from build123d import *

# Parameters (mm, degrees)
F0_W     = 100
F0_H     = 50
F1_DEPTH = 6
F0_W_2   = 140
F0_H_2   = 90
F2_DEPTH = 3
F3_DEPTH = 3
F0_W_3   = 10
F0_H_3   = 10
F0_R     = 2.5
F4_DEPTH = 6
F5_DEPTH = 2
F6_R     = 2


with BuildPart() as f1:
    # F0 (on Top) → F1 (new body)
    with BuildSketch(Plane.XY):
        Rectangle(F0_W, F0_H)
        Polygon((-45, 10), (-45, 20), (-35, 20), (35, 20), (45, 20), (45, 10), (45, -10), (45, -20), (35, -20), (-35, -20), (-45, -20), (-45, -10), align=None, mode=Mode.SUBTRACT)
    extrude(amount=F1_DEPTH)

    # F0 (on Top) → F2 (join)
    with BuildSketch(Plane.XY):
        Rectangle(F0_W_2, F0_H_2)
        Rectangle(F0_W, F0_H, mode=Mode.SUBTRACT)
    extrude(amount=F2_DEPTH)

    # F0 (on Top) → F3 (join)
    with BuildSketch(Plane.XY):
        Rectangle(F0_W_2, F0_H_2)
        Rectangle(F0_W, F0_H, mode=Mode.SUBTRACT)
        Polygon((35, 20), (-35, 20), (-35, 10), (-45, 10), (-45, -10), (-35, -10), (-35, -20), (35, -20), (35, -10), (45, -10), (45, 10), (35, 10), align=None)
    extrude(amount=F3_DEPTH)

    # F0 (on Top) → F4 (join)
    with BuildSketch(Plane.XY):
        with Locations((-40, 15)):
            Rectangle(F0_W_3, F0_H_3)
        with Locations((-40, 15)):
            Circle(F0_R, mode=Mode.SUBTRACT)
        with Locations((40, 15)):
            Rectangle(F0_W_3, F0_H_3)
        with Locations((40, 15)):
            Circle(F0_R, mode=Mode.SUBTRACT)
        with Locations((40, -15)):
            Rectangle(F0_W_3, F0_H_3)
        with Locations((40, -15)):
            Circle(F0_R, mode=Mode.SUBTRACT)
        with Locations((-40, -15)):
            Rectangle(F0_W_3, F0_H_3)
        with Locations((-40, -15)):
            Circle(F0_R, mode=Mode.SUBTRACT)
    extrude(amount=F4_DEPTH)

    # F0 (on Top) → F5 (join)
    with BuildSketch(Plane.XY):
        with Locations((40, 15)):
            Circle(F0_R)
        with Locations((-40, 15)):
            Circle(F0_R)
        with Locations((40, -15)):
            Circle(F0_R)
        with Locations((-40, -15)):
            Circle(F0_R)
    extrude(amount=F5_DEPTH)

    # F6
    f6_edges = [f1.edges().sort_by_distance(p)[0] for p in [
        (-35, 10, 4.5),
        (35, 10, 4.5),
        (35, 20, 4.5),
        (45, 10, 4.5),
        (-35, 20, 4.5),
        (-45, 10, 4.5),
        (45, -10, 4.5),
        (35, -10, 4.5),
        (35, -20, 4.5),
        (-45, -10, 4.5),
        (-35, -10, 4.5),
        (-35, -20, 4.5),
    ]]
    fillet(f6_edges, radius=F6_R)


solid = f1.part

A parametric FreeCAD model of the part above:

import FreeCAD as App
import Part
import Sketcher
from FreeCAD import Vector
Q = App.Units.Quantity


def edges_at(feature, points):
    """Names of the edges that pass closest to the given points."""
    edges = feature.Shape.Edges
    near = lambda p: min(range(len(edges)), key=lambda i: edges[i].distToShape(Part.Vertex(*p))[0])
    return sorted({f"Edge{near(p) + 1}" for p in points})


def add_polygon(sketch, points):
    """Adds a closed chain of lines whose ends are joined by coincident constraints."""
    first, n = sketch.GeometryCount, len(points)
    for a, b in zip(points, points[1:] + points[:1]):
        sketch.addGeometry(Part.LineSegment(App.Vector(*a, 0), App.Vector(*b, 0)), False)
    for i in range(n):
        sketch.addConstraint(Sketcher.Constraint("Coincident", first + i, 2, first + (i + 1) % n, 1))

doc = App.newDocument("Part")
body = doc.addObject("PartDesign::Body", "Body")

# Sketch on XY plane
sketch1 = body.newObject("Sketcher::SketchObject", "Sketch")
sketch1.AttachmentSupport = (doc.getObject("XY_Plane"), [""])
sketch1.MapMode = "FlatFace"
add_polygon(sketch1, [(-50, 25), (-50, -25), (50, -25), (50, 25)])  # lines 0-3
add_polygon(sketch1, [(-45, -20), (-45, 20), (45, 20), (45, -20)])  # lines 4-7
sketch1.addConstraint(Sketcher.Constraint("Vertical", 0))
sketch1.addConstraint(Sketcher.Constraint("Horizontal", 1))
sketch1.addConstraint(Sketcher.Constraint("Vertical", 2))
sketch1.addConstraint(Sketcher.Constraint("Horizontal", 3))
sketch1.addConstraint(Sketcher.Constraint("Vertical", 4))
sketch1.addConstraint(Sketcher.Constraint("Horizontal", 5))
sketch1.addConstraint(Sketcher.Constraint("Vertical", 6))
sketch1.addConstraint(Sketcher.Constraint("Horizontal", 7))
sketch1.addConstraint(Sketcher.Constraint("Symmetric", 0, 2, 2, 2, -1, 1))
sketch1.addConstraint(Sketcher.Constraint("Symmetric", 4, 2, 6, 2, -1, 1))
sketch1.addConstraint(Sketcher.Constraint("DistanceX", 1, 1, 1, 2, Q("100 mm")))
sketch1.addConstraint(Sketcher.Constraint("DistanceX", 5, 1, 5, 2, Q("90 mm")))
sketch1.addConstraint(Sketcher.Constraint("DistanceY", 0, 2, 0, 1, Q("50 mm")))
sketch1.addConstraint(Sketcher.Constraint("DistanceY", 4, 1, 4, 2, Q("40 mm")))
pad1 = body.newObject("PartDesign::Pad", "Pad")
pad1.Profile = sketch1
pad1.Length = 6

# Sketch on XY plane
sketch2 = body.newObject("Sketcher::SketchObject", "Sketch001")
sketch2.AttachmentSupport = (doc.getObject("XY_Plane"), [""])
sketch2.MapMode = "FlatFace"
add_polygon(sketch2, [(-70, 45), (-70, -45), (70, -45), (70, 45)])  # lines 0-3
add_polygon(sketch2, [(50, -25), (-50, -25), (-50, 25), (50, 25)])  # lines 4-7
sketch2.addConstraint(Sketcher.Constraint("Vertical", 0))
sketch2.addConstraint(Sketcher.Constraint("Horizontal", 1))
sketch2.addConstraint(Sketcher.Constraint("Vertical", 2))
sketch2.addConstraint(Sketcher.Constraint("Horizontal", 3))
sketch2.addConstraint(Sketcher.Constraint("Horizontal", 4))
sketch2.addConstraint(Sketcher.Constraint("Vertical", 5))
sketch2.addConstraint(Sketcher.Constraint("Horizontal", 6))
sketch2.addConstraint(Sketcher.Constraint("Vertical", 7))
sketch2.addConstraint(Sketcher.Constraint("Symmetric", 0, 2, 2, 2, -1, 1))
sketch2.addConstraint(Sketcher.Constraint("Symmetric", 4, 2, 6, 2, -1, 1))
sketch2.addConstraint(Sketcher.Constraint("DistanceX", 1, 1, 1, 2, Q("140 mm")))
sketch2.addConstraint(Sketcher.Constraint("DistanceX", 4, 2, 4, 1, Q("100 mm")))
sketch2.addConstraint(Sketcher.Constraint("DistanceY", 0, 2, 0, 1, Q("90 mm")))
sketch2.addConstraint(Sketcher.Constraint("DistanceY", 5, 1, 5, 2, Q("50 mm")))
pad2 = body.newObject("PartDesign::Pad", "Pad001")
pad2.Profile = sketch2
pad2.Length = 3

# Sketch on XY plane
sketch3 = body.newObject("Sketcher::SketchObject", "Sketch002")
sketch3.AttachmentSupport = (doc.getObject("XY_Plane"), [""])
sketch3.MapMode = "FlatFace"
add_polygon(sketch3, [(-70, 45), (-70, -45), (70, -45), (70, 45)])  # lines 0-3
add_polygon(sketch3, [(50, -25), (-50, -25), (-50, 25), (50, 25)])  # lines 4-7
add_polygon(sketch3, [(35, 20), (-35, 20), (-35, 10), (-45, 10), (-45, -10), (-35, -10), (-35, -20), (35, -20), (35, -10), (45, -10), (45, 10), (35, 10)])  # lines 8-19
sketch3.addConstraint(Sketcher.Constraint("Vertical", 0))
sketch3.addConstraint(Sketcher.Constraint("Horizontal", 1))
sketch3.addConstraint(Sketcher.Constraint("Vertical", 2))
sketch3.addConstraint(Sketcher.Constraint("Horizontal", 3))
sketch3.addConstraint(Sketcher.Constraint("Horizontal", 4))
sketch3.addConstraint(Sketcher.Constraint("Vertical", 5))
sketch3.addConstraint(Sketcher.Constraint("Horizontal", 6))
sketch3.addConstraint(Sketcher.Constraint("Vertical", 7))
sketch3.addConstraint(Sketcher.Constraint("Horizontal", 8))
sketch3.addConstraint(Sketcher.Constraint("Vertical", 9))
sketch3.addConstraint(Sketcher.Constraint("Horizontal", 10))
sketch3.addConstraint(Sketcher.Constraint("Vertical", 11))
sketch3.addConstraint(Sketcher.Constraint("Horizontal", 12))
sketch3.addConstraint(Sketcher.Constraint("Vertical", 13))
sketch3.addConstraint(Sketcher.Constraint("Horizontal", 14))
sketch3.addConstraint(Sketcher.Constraint("Vertical", 15))
sketch3.addConstraint(Sketcher.Constraint("Horizontal", 16))
sketch3.addConstraint(Sketcher.Constraint("Vertical", 17))
sketch3.addConstraint(Sketcher.Constraint("Horizontal", 18))
sketch3.addConstraint(Sketcher.Constraint("Vertical", 19))
sketch3.addConstraint(Sketcher.Constraint("Symmetric", 0, 2, 2, 2, -1, 1))
sketch3.addConstraint(Sketcher.Constraint("Symmetric", 4, 2, 6, 2, -1, 1))
sketch3.addConstraint(Sketcher.Constraint("Symmetric", 8, 2, 14, 2, -1, 1))
sketch3.addConstraint(Sketcher.Constraint("Symmetric", 10, 2, 16, 2, -1, 1))
sketch3.addConstraint(Sketcher.Constraint("Symmetric", 12, 2, 18, 2, -1, 1))
sketch3.addConstraint(Sketcher.Constraint("Symmetric", 12, 2, 15, 2, -2))
sketch3.addConstraint(Sketcher.Constraint("Equal", 18, 9))
sketch3.addConstraint(Sketcher.Constraint("DistanceX", 1, 1, 1, 2, Q("140 mm")))
sketch3.addConstraint(Sketcher.Constraint("DistanceX", 4, 2, 4, 1, Q("100 mm")))
sketch3.addConstraint(Sketcher.Constraint("DistanceX", 8, 2, 8, 1, Q("70 mm")))
sketch3.addConstraint(Sketcher.Constraint("DistanceX", 10, 2, 10, 1, Q("10 mm")))
sketch3.addConstraint(Sketcher.Constraint("DistanceY", 0, 2, 0, 1, Q("90 mm")))
sketch3.addConstraint(Sketcher.Constraint("DistanceY", 5, 1, 5, 2, Q("50 mm")))
sketch3.addConstraint(Sketcher.Constraint("DistanceY", 11, 2, 11, 1, Q("20 mm")))
pad3 = body.newObject("PartDesign::Pad", "Pad002")
pad3.Profile = sketch3
pad3.Length = 3

# Sketch on XY plane
sketch4 = body.newObject("Sketcher::SketchObject", "Sketch003")
sketch4.AttachmentSupport = (doc.getObject("XY_Plane"), [""])
sketch4.MapMode = "FlatFace"
add_polygon(sketch4, [(-45, 20), (-45, 10), (-35, 10), (-35, 20)])  # lines 0-3
sketch4.addGeometry(Part.Circle(Vector(-40, 15, 0), Vector(0, 0, 1), 2.5), False)  # 4
add_polygon(sketch4, [(35, 20), (35, 10), (45, 10), (45, 20)])  # lines 5-8
sketch4.addGeometry(Part.Circle(Vector(40, 15, 0), Vector(0, 0, 1), 2.5), False)  # 9
add_polygon(sketch4, [(35, -10), (35, -20), (45, -20), (45, -10)])  # lines 10-13
sketch4.addGeometry(Part.Circle(Vector(40, -15, 0), Vector(0, 0, 1), 2.5), False)  # 14
add_polygon(sketch4, [(-45, -10), (-45, -20), (-35, -20), (-35, -10)])  # lines 15-18
sketch4.addGeometry(Part.Circle(Vector(-40, -15, 0), Vector(0, 0, 1), 2.5), False)  # 19
sketch4.addConstraint(Sketcher.Constraint("Vertical", 0))
sketch4.addConstraint(Sketcher.Constraint("Horizontal", 1))
sketch4.addConstraint(Sketcher.Constraint("Vertical", 2))
sketch4.addConstraint(Sketcher.Constraint("Horizontal", 3))
sketch4.addConstraint(Sketcher.Constraint("Vertical", 5))
sketch4.addConstraint(Sketcher.Constraint("Horizontal", 6))
sketch4.addConstraint(Sketcher.Constraint("Vertical", 7))
sketch4.addConstraint(Sketcher.Constraint("Horizontal", 8))
sketch4.addConstraint(Sketcher.Constraint("Vertical", 10))
sketch4.addConstraint(Sketcher.Constraint("Horizontal", 11))
sketch4.addConstraint(Sketcher.Constraint("Vertical", 12))
sketch4.addConstraint(Sketcher.Constraint("Horizontal", 13))
sketch4.addConstraint(Sketcher.Constraint("Vertical", 15))
sketch4.addConstraint(Sketcher.Constraint("Horizontal", 16))
sketch4.addConstraint(Sketcher.Constraint("Vertical", 17))
sketch4.addConstraint(Sketcher.Constraint("Horizontal", 18))
sketch4.addConstraint(Sketcher.Constraint("Equal", 4, 9))
sketch4.addConstraint(Sketcher.Constraint("Equal", 9, 14))
sketch4.addConstraint(Sketcher.Constraint("Equal", 14, 19))
sketch4.addConstraint(Sketcher.Constraint("Symmetric", 4, 3, 14, 3, -1, 1))
sketch4.addConstraint(Sketcher.Constraint("Symmetric", 9, 3, 19, 3, -1, 1))
sketch4.addConstraint(Sketcher.Constraint("Symmetric", 2, 2, 10, 2, -1, 1))
sketch4.addConstraint(Sketcher.Constraint("Symmetric", 0, 2, 12, 2, -1, 1))
sketch4.addConstraint(Sketcher.Constraint("Symmetric", 7, 2, 15, 2, -1, 1))
sketch4.addConstraint(Sketcher.Constraint("Symmetric", 5, 2, 17, 2, -1, 1))
sketch4.addConstraint(Sketcher.Constraint("Symmetric", 4, 3, 9, 3, -2))
sketch4.addConstraint(Sketcher.Constraint("Symmetric", 1, 2, 5, 2, -2))
sketch4.addConstraint(Sketcher.Constraint("Symmetric", 3, 2, 7, 2, -2))
sketch4.addConstraint(Sketcher.Constraint("Equal", 18, 0))
sketch4.addConstraint(Sketcher.Constraint("Diameter", 4, Q("5 mm")))
sketch4.addConstraint(Sketcher.Constraint("DistanceX", 1, 1, 1, 2, Q("10 mm")))
sketch4.addConstraint(Sketcher.Constraint("DistanceX", 4, 3, -1, 1, Q("40 mm")))
sketch4.addConstraint(Sketcher.Constraint("DistanceY", -1, 1, 4, 3, Q("15 mm")))
sketch4.addConstraint(Sketcher.Constraint("DistanceX", 0, 2, -1, 1, Q("45 mm")))
sketch4.addConstraint(Sketcher.Constraint("DistanceY", -1, 1, 0, 2, Q("10 mm")))
pad4 = body.newObject("PartDesign::Pad", "Pad003")
pad4.Profile = sketch4
pad4.Length = 6

# Sketch on XY plane
sketch5 = body.newObject("Sketcher::SketchObject", "Sketch004")
sketch5.AttachmentSupport = (doc.getObject("XY_Plane"), [""])
sketch5.MapMode = "FlatFace"
sketch5.addGeometry(Part.Circle(Vector(40, 15, 0), Vector(0, 0, 1), 2.5), False)
sketch5.addGeometry(Part.Circle(Vector(-40, 15, 0), Vector(0, 0, 1), 2.5), False)
sketch5.addGeometry(Part.Circle(Vector(40, -15, 0), Vector(0, 0, 1), 2.5), False)
sketch5.addGeometry(Part.Circle(Vector(-40, -15, 0), Vector(0, 0, 1), 2.5), False)
sketch5.addConstraint(Sketcher.Constraint("Equal", 0, 1))
sketch5.addConstraint(Sketcher.Constraint("Equal", 1, 2))
sketch5.addConstraint(Sketcher.Constraint("Equal", 2, 3))
sketch5.addConstraint(Sketcher.Constraint("Symmetric", 1, 3, 2, 3, -1, 1))
sketch5.addConstraint(Sketcher.Constraint("Symmetric", 0, 3, 3, 3, -1, 1))
sketch5.addConstraint(Sketcher.Constraint("Symmetric", 0, 3, 1, 3, -2))
sketch5.addConstraint(Sketcher.Constraint("Diameter", 0, Q("5 mm")))
sketch5.addConstraint(Sketcher.Constraint("DistanceX", -1, 1, 0, 3, Q("40 mm")))
sketch5.addConstraint(Sketcher.Constraint("DistanceY", -1, 1, 0, 3, Q("15 mm")))
pad5 = body.newObject("PartDesign::Pad", "Pad004")
pad5.Profile = sketch5
pad5.Length = 2
doc.recompute()

fillet = body.newObject("PartDesign::Fillet", "Fillet")
fillet.Base = (pad5, edges_at(pad5, [
    (-35, 10, 4.5),
    (35, 10, 4.5),
    (35, 20, 4.5),
    (45, 10, 4.5),
    (-35, 20, 4.5),
    (-45, 10, 4.5),
    (45, -10, 4.5),
    (35, -10, 4.5),
    (35, -20, 4.5),
    (-45, -10, 4.5),
    (-35, -10, 4.5),
    (-35, -20, 4.5),
]))
fillet.Radius = 2

doc.recompute()
